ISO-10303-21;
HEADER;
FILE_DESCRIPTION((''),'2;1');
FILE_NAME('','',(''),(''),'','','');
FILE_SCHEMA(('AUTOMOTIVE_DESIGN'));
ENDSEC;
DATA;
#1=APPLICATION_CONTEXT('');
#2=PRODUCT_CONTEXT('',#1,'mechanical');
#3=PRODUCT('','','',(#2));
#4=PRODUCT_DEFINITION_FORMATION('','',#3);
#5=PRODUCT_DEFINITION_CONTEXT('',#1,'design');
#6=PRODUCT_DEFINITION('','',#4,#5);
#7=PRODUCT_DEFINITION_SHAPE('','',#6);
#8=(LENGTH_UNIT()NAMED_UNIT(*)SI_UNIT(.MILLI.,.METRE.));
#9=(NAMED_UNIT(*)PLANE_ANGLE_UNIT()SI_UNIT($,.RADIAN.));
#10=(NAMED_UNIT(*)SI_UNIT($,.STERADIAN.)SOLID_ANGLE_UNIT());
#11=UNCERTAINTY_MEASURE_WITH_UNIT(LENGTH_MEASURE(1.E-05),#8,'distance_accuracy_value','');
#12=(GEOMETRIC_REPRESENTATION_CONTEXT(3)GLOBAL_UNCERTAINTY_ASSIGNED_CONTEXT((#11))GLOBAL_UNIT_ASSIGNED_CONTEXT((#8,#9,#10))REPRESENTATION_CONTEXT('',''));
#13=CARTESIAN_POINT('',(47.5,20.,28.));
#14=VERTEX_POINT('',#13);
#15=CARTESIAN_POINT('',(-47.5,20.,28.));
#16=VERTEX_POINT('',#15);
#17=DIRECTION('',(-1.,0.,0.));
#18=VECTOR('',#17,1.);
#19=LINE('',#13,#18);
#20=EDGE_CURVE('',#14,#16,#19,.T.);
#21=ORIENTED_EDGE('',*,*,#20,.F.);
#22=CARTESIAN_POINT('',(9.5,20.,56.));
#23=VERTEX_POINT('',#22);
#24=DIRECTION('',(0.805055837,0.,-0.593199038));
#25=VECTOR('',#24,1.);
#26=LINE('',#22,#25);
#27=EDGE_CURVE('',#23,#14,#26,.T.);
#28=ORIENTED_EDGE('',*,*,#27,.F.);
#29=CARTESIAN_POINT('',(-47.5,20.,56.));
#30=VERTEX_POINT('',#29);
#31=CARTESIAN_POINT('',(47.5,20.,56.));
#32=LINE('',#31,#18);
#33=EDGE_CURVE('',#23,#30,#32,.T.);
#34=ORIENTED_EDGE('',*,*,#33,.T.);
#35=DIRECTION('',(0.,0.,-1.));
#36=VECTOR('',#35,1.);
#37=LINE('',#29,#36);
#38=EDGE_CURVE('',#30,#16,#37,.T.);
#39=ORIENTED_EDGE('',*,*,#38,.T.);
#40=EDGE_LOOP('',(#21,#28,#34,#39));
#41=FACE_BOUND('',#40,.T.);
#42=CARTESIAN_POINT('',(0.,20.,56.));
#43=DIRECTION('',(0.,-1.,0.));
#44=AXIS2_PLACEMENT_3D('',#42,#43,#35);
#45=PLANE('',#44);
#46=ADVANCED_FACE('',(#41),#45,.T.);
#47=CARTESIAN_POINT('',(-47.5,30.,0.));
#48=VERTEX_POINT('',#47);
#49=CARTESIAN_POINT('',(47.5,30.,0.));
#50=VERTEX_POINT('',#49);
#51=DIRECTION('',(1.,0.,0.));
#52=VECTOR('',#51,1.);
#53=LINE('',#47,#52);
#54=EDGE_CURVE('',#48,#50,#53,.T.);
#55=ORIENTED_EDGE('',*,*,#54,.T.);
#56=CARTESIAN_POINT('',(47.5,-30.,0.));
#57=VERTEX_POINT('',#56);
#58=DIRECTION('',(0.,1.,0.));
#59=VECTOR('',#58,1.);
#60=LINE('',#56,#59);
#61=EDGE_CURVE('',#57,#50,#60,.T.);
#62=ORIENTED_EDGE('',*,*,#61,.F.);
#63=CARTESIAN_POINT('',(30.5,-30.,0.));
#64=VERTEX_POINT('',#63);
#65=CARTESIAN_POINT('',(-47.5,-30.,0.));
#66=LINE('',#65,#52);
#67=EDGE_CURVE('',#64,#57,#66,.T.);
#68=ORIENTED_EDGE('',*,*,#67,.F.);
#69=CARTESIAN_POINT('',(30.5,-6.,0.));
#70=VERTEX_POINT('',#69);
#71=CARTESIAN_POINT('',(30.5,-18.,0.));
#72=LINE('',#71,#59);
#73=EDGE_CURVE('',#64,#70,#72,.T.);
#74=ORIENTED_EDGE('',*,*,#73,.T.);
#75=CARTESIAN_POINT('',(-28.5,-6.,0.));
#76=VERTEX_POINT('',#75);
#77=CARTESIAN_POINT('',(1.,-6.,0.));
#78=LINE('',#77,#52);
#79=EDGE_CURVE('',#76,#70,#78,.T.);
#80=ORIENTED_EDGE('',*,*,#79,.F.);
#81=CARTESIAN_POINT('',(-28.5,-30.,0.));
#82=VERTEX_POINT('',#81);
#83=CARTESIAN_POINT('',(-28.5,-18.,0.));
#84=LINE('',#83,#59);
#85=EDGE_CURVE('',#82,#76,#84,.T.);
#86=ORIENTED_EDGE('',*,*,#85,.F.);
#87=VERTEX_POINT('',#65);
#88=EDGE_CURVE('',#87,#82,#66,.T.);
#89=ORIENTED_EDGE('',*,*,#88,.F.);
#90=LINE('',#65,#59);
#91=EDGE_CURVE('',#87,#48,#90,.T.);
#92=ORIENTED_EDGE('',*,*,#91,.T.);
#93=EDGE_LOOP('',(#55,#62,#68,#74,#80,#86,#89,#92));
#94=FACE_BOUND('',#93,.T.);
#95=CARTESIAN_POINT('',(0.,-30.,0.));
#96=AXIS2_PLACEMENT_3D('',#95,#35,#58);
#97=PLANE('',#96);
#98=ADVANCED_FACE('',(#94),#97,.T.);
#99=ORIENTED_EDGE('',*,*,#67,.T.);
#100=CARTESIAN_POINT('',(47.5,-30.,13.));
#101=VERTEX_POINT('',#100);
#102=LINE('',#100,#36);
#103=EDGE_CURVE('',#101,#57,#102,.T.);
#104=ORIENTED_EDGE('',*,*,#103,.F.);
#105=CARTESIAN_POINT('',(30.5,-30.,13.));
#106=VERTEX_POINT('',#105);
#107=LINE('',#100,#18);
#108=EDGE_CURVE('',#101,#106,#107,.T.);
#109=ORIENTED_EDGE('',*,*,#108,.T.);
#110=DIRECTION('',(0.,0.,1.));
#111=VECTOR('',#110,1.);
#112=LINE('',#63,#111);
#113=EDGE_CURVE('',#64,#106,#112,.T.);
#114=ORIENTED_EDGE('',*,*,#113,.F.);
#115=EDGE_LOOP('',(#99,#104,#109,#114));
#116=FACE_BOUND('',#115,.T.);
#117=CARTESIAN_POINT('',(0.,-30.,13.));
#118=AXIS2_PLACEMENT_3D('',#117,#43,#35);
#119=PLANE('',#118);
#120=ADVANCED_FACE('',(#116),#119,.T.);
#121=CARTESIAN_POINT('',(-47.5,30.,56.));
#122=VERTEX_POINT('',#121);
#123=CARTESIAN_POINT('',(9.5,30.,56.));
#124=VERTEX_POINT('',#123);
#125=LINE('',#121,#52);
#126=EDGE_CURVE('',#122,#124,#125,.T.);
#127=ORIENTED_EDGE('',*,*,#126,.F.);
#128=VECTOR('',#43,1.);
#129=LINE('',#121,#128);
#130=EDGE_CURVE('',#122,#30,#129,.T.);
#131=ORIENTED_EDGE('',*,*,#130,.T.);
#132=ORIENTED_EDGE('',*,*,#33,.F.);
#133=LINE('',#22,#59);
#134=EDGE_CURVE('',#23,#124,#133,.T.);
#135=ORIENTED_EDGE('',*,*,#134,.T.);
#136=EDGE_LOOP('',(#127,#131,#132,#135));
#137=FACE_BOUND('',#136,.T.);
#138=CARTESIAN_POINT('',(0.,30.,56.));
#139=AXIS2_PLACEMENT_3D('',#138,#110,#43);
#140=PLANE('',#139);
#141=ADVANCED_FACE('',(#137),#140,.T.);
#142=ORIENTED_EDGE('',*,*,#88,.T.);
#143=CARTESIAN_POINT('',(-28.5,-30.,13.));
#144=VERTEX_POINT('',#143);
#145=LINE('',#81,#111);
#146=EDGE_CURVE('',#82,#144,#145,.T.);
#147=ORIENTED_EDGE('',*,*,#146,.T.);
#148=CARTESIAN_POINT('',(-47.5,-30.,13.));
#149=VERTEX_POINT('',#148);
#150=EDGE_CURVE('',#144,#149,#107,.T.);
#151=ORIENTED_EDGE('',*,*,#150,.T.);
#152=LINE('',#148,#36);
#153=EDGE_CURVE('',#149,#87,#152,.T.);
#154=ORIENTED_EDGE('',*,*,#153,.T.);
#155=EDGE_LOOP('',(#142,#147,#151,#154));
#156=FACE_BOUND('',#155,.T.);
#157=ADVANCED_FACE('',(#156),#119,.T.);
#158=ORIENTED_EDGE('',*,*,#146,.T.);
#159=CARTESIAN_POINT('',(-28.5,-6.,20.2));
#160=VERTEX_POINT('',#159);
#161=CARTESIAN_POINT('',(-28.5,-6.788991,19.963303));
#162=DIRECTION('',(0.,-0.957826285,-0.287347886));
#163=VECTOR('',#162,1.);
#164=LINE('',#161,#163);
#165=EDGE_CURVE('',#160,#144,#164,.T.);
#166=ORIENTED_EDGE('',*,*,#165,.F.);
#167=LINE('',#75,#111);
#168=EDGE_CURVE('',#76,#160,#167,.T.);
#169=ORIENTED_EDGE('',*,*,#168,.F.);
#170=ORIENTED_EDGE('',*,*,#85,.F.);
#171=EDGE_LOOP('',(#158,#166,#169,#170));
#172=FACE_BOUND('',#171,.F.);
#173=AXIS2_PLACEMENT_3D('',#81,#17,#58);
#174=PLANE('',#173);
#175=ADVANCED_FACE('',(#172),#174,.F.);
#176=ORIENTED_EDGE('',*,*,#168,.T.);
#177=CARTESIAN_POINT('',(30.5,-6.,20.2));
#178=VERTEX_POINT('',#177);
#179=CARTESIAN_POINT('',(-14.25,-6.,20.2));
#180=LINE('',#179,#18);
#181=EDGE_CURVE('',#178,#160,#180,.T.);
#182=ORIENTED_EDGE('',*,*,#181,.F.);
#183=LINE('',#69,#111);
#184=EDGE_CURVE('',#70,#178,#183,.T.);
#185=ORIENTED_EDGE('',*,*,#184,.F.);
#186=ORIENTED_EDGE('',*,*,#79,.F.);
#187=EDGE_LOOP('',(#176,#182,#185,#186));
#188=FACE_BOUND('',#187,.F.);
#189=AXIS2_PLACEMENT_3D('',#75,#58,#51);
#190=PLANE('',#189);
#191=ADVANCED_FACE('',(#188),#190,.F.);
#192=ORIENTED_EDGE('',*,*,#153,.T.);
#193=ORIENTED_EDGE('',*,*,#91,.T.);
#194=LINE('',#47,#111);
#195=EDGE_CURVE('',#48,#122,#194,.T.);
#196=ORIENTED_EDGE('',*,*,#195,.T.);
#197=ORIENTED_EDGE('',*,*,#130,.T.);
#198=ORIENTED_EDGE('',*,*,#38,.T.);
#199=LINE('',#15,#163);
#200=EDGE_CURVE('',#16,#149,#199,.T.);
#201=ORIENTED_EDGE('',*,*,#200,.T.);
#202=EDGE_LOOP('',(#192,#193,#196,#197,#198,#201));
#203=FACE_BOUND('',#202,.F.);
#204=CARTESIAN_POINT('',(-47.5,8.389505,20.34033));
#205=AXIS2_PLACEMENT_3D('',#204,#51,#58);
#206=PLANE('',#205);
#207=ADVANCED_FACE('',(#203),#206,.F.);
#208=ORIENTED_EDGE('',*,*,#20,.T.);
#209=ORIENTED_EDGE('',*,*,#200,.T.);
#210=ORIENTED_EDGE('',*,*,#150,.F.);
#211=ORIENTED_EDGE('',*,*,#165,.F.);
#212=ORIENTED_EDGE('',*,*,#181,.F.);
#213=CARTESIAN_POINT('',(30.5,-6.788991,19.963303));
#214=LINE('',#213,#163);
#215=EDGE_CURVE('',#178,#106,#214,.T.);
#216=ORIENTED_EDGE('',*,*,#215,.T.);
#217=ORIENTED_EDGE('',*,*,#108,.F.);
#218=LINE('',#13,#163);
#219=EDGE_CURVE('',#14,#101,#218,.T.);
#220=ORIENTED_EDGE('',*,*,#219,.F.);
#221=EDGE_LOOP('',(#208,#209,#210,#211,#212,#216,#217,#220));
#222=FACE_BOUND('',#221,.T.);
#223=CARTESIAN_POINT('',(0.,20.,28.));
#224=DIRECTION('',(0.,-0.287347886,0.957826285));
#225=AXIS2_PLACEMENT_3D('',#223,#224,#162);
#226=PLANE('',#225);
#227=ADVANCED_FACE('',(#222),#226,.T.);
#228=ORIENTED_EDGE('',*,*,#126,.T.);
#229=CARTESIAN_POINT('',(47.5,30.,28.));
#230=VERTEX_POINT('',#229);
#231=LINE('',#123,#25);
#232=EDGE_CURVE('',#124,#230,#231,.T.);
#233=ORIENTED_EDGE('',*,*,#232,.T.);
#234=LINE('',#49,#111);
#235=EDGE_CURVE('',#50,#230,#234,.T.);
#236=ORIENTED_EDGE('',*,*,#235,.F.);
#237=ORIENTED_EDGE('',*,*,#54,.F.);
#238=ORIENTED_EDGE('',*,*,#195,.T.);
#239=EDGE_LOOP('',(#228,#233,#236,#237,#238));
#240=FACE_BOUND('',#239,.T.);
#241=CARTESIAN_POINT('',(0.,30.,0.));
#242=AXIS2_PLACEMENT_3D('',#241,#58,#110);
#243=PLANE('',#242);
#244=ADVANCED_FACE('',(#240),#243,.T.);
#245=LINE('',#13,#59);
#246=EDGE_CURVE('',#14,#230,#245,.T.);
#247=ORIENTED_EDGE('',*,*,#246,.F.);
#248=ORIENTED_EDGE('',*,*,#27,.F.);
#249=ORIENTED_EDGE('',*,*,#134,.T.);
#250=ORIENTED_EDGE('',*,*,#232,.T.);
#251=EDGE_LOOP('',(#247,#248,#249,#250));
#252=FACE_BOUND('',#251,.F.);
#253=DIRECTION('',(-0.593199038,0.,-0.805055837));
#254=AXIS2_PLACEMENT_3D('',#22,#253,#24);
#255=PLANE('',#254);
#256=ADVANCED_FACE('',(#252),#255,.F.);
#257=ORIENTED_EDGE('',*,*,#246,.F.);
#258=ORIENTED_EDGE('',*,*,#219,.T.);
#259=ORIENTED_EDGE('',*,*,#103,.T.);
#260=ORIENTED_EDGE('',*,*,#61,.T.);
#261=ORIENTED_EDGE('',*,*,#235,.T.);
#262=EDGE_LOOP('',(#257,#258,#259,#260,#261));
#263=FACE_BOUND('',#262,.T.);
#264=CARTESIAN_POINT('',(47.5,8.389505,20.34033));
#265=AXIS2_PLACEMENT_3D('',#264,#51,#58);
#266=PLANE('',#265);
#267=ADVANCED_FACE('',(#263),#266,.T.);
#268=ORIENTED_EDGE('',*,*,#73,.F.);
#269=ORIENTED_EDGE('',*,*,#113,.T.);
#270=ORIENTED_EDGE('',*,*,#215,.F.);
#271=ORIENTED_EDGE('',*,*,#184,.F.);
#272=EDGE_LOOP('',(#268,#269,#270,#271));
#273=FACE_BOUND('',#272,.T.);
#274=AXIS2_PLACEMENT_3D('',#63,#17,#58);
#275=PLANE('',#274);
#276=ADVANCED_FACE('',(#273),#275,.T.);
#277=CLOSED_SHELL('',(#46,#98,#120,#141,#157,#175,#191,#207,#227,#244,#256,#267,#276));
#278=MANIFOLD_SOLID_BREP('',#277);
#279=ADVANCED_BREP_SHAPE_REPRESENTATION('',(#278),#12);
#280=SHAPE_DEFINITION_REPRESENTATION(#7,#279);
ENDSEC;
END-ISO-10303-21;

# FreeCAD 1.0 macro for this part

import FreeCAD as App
import Part
import Sketcher
from FreeCAD import Vector


def add_polygon(sketch, points):
    """Adds a closed chain of lines whose ends are joined by coincident constraints."""
    first, n = sketch.GeometryCount, len(points)
    for a, b in zip(points, points[1:] + points[:1]):
        sketch.addGeometry(Part.LineSegment(App.Vector(*a, 0), App.Vector(*b, 0)), False)
    for i in range(n):
        sketch.addConstraint(Sketcher.Constraint("Coincident", first + i, 2, first + (i + 1) % n, 1))

doc = App.newDocument("Part")
body = doc.addObject("PartDesign::Body", "Body")

sketch1 = body.newObject("Sketcher::SketchObject", "Sketch")
sketch1.AttachmentSupport = (doc.getObject("YZ_Plane"), [""])
sketch1.MapMode = "FlatFace"
add_polygon(sketch1, [(-30, 13), (-30, 0), (30, 0), (30, 56), (20, 56), (20, 28)])
sketch1.addConstraint(Sketcher.Constraint("Vertical", 0))
sketch1.addConstraint(Sketcher.Constraint("Horizontal", 1))
sketch1.addConstraint(Sketcher.Constraint("Vertical", 2))
sketch1.addConstraint(Sketcher.Constraint("Horizontal", 3))
sketch1.addConstraint(Sketcher.Constraint("Vertical", 4))
sketch1.addConstraint(Sketcher.Constraint("Symmetric", 0, 2, 1, 2, -1, 1))
sketch1.addConstraint(Sketcher.Constraint("DistanceX", 1, 1, 1, 2, 60.0))
sketch1.addConstraint(Sketcher.Constraint("DistanceX", 3, 2, 3, 1, 10.0))
sketch1.addConstraint(Sketcher.Constraint("DistanceY", 0, 2, 0, 1, 13.0))
sketch1.addConstraint(Sketcher.Constraint("DistanceY", 2, 1, 2, 2, 56.0))
sketch1.addConstraint(Sketcher.Constraint("DistanceY", 4, 2, 4, 1, 28.0))
pad1 = body.newObject("PartDesign::Pad", "Pad")
pad1.Profile = sketch1
pad1.Length = 95
pad1.Midplane = True

sketch2 = body.newObject("Sketcher::SketchObject", "Sketch001")
sketch2.AttachmentSupport = (doc.getObject("XY_Plane"), [""])
sketch2.MapMode = "FlatFace"
add_polygon(sketch2, [(-28.5, -6), (-28.5, -30), (30.5, -30), (30.5, -6)])
sketch2.addConstraint(Sketcher.Constraint("Vertical", 0))
sketch2.addConstraint(Sketcher.Constraint("Horizontal", 1))
sketch2.addConstraint(Sketcher.Constraint("Vertical", 2))
sketch2.addConstraint(Sketcher.Constraint("Horizontal", 3))
sketch2.addConstraint(Sketcher.Constraint("DistanceX", 1, 1, 1, 2, 59.0))
sketch2.addConstraint(Sketcher.Constraint("DistanceY", 0, 2, 0, 1, 24.0))
sketch2.addConstraint(Sketcher.Constraint("DistanceY", 0, 2, -1, 1, 30.0))
sketch2.addConstraint(Sketcher.Constraint("DistanceX", 0, 2, -1, 1, 28.5))
pocket1 = body.newObject("PartDesign::Pocket", "Pocket")
pocket1.Profile = sketch2
pocket1.Length = 25
pocket1.Reversed = True

sketch3 = body.newObject("Sketcher::SketchObject", "Sketch002")
sketch3.AttachmentSupport = (doc.getObject("XZ_Plane"), [""])
sketch3.MapMode = "FlatFace"
sketch3.AttachmentOffset = App.Placement(Vector(0, 0, -20), App.Rotation())
add_polygon(sketch3, [(47.5, 56), (9.5, 56), (47.5, 28)])
sketch3.addConstraint(Sketcher.Constraint("Horizontal", 0))
sketch3.addConstraint(Sketcher.Constraint("Vertical", 2))
sketch3.addConstraint(Sketcher.Constraint("DistanceX", 0, 2, 0, 1, 38.0))
sketch3.addConstraint(Sketcher.Constraint("DistanceY", 2, 1, 2, 2, 28.0))
sketch3.addConstraint(Sketcher.Constraint("DistanceY", -1, 1, 0, 2, 56.0))
sketch3.addConstraint(Sketcher.Constraint("DistanceX", -1, 1, 0, 2, 9.5))
pocket2 = body.newObject("PartDesign::Pocket", "Pocket001")
pocket2.Profile = sketch3
pocket2.Type = "ThroughAll"

doc.recompute()
